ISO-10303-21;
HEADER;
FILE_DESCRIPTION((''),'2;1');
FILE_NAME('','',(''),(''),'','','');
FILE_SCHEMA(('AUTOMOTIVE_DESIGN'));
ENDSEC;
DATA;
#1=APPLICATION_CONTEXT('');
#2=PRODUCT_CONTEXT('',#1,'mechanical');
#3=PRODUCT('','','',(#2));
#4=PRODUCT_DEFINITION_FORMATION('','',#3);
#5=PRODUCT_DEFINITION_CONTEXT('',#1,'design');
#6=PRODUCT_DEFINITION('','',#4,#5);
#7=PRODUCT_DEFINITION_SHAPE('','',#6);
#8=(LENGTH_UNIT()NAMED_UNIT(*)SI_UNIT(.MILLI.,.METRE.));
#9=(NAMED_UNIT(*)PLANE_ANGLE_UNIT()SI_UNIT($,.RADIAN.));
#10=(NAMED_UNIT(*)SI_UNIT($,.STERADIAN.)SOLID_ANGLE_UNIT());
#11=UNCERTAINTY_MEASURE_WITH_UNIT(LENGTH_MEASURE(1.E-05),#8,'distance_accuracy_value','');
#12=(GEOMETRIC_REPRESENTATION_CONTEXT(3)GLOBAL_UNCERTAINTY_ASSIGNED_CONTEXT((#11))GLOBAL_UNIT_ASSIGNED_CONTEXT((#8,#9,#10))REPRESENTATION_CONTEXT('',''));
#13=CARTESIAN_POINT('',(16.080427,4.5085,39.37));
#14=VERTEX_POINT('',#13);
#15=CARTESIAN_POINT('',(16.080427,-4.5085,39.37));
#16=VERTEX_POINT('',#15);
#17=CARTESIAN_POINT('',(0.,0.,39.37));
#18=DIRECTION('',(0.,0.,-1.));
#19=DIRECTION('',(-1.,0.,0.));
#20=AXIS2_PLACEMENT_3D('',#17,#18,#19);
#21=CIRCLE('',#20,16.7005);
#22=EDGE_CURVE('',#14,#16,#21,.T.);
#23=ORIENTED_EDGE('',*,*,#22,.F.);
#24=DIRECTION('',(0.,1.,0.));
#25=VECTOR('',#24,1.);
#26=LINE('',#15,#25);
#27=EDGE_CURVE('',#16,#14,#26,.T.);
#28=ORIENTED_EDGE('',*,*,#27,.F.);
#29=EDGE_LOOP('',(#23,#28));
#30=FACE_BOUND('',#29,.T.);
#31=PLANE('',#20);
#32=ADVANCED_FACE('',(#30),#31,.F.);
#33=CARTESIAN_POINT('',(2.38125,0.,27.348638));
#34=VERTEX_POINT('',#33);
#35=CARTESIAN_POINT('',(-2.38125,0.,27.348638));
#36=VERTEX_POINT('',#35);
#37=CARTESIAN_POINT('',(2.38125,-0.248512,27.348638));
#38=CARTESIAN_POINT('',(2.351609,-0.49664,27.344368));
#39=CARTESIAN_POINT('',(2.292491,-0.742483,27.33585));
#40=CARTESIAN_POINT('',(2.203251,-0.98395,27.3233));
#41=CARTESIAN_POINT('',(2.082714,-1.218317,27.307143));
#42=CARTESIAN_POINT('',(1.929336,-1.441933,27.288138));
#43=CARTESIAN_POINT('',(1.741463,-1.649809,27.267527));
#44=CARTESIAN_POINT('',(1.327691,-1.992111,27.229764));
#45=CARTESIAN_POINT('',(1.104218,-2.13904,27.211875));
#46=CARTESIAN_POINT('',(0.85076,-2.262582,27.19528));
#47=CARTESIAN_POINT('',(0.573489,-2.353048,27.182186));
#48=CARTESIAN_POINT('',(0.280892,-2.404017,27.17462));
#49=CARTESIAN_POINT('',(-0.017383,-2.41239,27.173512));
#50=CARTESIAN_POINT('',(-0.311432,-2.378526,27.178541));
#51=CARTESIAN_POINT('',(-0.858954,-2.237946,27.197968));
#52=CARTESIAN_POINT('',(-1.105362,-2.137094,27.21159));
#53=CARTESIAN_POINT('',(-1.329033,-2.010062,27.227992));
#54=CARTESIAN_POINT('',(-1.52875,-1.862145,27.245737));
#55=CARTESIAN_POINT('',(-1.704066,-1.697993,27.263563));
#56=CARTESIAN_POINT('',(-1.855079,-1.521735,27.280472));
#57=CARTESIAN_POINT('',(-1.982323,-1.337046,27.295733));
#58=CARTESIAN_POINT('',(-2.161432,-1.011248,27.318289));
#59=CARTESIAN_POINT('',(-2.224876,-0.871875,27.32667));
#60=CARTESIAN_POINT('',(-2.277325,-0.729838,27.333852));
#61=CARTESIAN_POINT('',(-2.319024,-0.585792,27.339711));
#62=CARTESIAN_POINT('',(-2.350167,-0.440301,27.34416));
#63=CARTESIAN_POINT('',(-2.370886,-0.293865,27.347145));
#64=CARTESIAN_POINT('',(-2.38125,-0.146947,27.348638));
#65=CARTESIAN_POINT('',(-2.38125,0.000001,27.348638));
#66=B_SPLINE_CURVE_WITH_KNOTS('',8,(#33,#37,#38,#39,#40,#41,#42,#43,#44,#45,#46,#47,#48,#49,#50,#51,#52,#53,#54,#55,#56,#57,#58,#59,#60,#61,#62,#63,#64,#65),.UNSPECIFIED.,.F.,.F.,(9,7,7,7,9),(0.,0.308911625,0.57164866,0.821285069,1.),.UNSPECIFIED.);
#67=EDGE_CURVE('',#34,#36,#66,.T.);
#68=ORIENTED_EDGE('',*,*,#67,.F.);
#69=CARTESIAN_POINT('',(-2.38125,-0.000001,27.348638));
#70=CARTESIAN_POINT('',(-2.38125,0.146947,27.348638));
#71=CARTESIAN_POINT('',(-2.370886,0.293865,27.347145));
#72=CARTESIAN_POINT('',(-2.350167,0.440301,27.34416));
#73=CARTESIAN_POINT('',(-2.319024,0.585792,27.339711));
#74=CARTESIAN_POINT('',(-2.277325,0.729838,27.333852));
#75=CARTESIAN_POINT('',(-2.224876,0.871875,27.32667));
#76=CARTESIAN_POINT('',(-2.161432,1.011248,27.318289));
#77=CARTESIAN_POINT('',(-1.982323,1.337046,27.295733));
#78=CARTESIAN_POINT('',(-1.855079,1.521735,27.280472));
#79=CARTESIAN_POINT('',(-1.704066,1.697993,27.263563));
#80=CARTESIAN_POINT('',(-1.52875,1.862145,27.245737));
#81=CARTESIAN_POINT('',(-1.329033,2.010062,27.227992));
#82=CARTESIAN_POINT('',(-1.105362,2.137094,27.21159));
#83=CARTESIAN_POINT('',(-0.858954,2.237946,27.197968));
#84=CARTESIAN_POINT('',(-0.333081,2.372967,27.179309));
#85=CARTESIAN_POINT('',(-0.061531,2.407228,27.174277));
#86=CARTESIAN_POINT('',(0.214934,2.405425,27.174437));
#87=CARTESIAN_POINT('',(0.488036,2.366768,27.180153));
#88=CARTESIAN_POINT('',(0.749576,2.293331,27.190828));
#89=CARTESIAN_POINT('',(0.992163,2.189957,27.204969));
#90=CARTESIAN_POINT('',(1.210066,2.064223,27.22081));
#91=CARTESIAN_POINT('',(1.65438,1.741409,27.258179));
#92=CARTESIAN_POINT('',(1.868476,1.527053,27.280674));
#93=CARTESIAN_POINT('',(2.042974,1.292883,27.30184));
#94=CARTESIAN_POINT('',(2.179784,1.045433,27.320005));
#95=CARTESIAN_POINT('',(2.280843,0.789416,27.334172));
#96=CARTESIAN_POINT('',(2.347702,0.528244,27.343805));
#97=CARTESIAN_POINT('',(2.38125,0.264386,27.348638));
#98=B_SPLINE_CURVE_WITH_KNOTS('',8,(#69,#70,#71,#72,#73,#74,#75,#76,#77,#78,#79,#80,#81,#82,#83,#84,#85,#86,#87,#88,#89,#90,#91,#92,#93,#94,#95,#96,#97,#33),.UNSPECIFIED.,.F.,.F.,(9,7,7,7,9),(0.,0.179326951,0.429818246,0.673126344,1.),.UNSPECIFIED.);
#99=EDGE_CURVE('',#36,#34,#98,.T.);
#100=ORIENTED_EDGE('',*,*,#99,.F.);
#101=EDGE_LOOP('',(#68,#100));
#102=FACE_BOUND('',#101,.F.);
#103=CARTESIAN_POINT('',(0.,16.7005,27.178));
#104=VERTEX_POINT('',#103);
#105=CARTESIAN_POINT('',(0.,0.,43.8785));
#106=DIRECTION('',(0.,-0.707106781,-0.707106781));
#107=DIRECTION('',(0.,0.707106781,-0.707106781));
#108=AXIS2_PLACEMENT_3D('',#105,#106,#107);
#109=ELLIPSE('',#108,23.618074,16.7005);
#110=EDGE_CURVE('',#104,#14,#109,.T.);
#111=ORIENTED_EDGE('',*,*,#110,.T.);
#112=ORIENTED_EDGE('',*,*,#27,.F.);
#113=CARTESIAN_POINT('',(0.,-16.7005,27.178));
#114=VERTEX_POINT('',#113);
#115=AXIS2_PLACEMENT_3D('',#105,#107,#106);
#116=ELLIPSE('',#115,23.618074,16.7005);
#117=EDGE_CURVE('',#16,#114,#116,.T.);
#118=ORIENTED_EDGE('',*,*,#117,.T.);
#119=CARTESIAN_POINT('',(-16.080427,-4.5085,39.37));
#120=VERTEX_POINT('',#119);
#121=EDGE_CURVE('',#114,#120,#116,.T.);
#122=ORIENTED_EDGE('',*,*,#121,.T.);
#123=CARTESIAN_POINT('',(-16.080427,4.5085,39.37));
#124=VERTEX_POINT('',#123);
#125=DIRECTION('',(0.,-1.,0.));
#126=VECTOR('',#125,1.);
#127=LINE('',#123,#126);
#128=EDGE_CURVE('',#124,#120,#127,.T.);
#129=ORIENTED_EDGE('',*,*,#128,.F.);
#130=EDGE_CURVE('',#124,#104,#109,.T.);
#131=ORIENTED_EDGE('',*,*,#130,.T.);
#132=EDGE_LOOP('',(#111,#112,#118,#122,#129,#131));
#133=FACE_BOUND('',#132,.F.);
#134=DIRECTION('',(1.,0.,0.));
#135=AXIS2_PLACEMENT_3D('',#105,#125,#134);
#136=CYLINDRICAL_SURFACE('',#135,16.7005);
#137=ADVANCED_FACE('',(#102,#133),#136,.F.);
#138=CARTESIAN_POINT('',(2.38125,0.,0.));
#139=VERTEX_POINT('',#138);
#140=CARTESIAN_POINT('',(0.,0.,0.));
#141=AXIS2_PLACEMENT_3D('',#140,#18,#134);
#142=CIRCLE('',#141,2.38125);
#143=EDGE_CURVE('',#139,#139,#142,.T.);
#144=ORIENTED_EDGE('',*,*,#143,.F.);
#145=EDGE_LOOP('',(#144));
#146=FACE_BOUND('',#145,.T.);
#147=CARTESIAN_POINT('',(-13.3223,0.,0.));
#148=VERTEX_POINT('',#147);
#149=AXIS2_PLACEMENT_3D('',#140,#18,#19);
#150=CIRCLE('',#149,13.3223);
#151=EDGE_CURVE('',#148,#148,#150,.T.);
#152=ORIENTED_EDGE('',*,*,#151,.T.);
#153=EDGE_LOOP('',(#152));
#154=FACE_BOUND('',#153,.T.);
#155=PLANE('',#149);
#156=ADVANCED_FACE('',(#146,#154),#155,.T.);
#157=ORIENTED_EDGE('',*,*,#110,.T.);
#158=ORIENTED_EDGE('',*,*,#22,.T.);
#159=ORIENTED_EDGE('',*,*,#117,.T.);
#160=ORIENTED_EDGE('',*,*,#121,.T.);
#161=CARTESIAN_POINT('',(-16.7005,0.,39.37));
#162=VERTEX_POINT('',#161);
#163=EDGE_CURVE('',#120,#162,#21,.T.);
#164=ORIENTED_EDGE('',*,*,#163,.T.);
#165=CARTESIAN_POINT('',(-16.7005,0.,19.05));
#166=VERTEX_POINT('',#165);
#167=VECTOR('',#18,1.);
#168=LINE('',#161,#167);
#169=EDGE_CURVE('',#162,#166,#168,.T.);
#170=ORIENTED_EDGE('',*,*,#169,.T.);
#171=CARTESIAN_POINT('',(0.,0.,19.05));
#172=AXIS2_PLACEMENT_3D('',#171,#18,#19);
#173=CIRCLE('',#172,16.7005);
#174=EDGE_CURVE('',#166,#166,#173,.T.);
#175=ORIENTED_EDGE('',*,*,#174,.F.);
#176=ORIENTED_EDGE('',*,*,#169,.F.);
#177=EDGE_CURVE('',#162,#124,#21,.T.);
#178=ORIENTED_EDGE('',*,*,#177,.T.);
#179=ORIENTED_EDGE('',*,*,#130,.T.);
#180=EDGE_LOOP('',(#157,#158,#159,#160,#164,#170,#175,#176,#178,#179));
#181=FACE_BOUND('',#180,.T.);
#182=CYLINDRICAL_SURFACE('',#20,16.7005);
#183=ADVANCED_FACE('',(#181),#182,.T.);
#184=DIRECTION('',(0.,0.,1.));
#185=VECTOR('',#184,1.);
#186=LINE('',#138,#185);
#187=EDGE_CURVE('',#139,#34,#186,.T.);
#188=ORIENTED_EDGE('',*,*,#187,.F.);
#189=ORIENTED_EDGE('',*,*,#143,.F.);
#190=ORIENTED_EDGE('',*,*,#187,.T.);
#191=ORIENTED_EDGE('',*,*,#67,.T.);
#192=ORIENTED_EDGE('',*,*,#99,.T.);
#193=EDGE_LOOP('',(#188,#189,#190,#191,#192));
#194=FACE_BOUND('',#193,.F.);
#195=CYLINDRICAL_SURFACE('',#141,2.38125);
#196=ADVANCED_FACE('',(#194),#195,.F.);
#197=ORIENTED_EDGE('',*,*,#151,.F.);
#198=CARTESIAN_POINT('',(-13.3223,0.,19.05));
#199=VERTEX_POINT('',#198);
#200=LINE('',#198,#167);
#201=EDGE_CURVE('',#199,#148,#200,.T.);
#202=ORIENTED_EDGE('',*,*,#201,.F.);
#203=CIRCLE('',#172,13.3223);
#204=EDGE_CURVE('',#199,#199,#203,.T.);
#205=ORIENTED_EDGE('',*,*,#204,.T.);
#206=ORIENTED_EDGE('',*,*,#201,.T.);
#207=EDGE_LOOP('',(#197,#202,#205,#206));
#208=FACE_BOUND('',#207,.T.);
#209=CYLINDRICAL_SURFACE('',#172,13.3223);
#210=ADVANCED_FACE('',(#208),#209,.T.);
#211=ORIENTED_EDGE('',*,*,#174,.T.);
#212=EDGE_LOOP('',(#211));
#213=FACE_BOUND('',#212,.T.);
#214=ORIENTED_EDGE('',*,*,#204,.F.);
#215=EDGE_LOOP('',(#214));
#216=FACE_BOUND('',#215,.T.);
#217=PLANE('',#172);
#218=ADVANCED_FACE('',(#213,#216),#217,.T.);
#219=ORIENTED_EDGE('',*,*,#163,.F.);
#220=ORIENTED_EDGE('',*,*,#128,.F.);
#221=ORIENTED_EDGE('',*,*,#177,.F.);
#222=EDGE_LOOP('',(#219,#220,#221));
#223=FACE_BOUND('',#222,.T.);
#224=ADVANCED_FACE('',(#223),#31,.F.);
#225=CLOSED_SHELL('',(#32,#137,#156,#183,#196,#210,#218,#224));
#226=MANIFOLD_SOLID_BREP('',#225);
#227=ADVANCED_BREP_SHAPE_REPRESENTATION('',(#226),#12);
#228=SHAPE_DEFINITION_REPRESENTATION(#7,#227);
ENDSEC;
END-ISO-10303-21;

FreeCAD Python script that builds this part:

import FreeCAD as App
import Part
import Sketcher

V = App.Vector
Q = App.Units.Quantity


def add_polygon(sketch, points):
    """Adds a closed chain of lines whose ends are joined by coincident constraints."""
    first, n = sketch.GeometryCount, len(points)
    for a, b in zip(points, points[1:] + points[:1]):
        sketch.addGeometry(Part.LineSegment(App.Vector(*a, 0), App.Vector(*b, 0)), False)
    for i in range(n):
        sketch.addConstraint(Sketcher.Constraint("Coincident", first + i, 2, first + (i + 1) % n, 1))

doc = App.newDocument("Part")
body = doc.addObject("PartDesign::Body", "Body")

sketch1 = body.newObject("Sketcher::SketchObject", "Sketch")
sketch1.AttachmentSupport = (doc.getObject("XZ_Plane"), [""])
sketch1.MapMode = "FlatFace"
add_polygon(sketch1, [(-13.3, 0), (0, 0), (0, 39.4), (-16.7, 39.4), (-16.7, 19.1), (-13.3, 19.1)])
sketch1.addConstraint([
    Sketcher.Constraint("Horizontal", 0),
    Sketcher.Constraint("Vertical", 1),
    Sketcher.Constraint("Horizontal", 2),
    Sketcher.Constraint("Vertical", 3),
    Sketcher.Constraint("Horizontal", 4),
    Sketcher.Constraint("Vertical", 5),
    Sketcher.Constraint("Coincident", 0, 2, -1, 1),
    Sketcher.Constraint("DistanceY", 3, 2, 3, 1, Q("0.8 in")),
    Sketcher.Constraint("DistanceY", 1, 1, 1, 2, Q("1.55 in")),
    Sketcher.Constraint("DistanceX", 4, 1, 4, 2, Q("0.133 in")),
    Sketcher.Constraint("DistanceX", 0, 1, 0, 2, Q("0.5245 in")),
])
revolution = body.newObject("PartDesign::Revolution", "Revolution")
revolution.Profile = sketch1
revolution.ReferenceAxis = (sketch1, ["V_Axis"])
revolution.Angle = 360

sketch2 = body.newObject("Sketcher::SketchObject", "Sketch001")
sketch2.AttachmentSupport = (doc.getObject("XY_Plane"), [""])
sketch2.MapMode = "FlatFace"
sketch2.addGeometry(Part.Circle(V(0, 0, 0), V(0, 0, 1), 2.4), False)
sketch2.addConstraint([
    Sketcher.Constraint("Coincident", 0, 3, -1, 1),
    Sketcher.Constraint("Diameter", 0, Q("0.1875 in")),
])
pocket1 = body.newObject("PartDesign::Pocket", "Pocket")
pocket1.Profile = sketch2
pocket1.Type = "ThroughAll"
pocket1.Reversed = True

sketch3 = body.newObject("Sketcher::SketchObject", "Sketch002")
sketch3.AttachmentSupport = (doc.getObject("XZ_Plane"), [""])
sketch3.MapMode = "FlatFace"
sketch3.addGeometry(Part.Circle(V(0, 44, 0), V(0, 0, 1), 17), False)
sketch3.addConstraint([
    Sketcher.Constraint("PointOnObject", 0, 3, -2),
    Sketcher.Constraint("Diameter", 0, Q("1.315 in")),
    Sketcher.Constraint("DistanceY", -1, 1, 0, 3, Q("1.7275 in")),
])
pocket2 = body.newObject("PartDesign::Pocket", "Pocket001")
pocket2.Profile = sketch3
pocket2.Type = "ThroughAll"
pocket2.Midplane = True

doc.recompute()
